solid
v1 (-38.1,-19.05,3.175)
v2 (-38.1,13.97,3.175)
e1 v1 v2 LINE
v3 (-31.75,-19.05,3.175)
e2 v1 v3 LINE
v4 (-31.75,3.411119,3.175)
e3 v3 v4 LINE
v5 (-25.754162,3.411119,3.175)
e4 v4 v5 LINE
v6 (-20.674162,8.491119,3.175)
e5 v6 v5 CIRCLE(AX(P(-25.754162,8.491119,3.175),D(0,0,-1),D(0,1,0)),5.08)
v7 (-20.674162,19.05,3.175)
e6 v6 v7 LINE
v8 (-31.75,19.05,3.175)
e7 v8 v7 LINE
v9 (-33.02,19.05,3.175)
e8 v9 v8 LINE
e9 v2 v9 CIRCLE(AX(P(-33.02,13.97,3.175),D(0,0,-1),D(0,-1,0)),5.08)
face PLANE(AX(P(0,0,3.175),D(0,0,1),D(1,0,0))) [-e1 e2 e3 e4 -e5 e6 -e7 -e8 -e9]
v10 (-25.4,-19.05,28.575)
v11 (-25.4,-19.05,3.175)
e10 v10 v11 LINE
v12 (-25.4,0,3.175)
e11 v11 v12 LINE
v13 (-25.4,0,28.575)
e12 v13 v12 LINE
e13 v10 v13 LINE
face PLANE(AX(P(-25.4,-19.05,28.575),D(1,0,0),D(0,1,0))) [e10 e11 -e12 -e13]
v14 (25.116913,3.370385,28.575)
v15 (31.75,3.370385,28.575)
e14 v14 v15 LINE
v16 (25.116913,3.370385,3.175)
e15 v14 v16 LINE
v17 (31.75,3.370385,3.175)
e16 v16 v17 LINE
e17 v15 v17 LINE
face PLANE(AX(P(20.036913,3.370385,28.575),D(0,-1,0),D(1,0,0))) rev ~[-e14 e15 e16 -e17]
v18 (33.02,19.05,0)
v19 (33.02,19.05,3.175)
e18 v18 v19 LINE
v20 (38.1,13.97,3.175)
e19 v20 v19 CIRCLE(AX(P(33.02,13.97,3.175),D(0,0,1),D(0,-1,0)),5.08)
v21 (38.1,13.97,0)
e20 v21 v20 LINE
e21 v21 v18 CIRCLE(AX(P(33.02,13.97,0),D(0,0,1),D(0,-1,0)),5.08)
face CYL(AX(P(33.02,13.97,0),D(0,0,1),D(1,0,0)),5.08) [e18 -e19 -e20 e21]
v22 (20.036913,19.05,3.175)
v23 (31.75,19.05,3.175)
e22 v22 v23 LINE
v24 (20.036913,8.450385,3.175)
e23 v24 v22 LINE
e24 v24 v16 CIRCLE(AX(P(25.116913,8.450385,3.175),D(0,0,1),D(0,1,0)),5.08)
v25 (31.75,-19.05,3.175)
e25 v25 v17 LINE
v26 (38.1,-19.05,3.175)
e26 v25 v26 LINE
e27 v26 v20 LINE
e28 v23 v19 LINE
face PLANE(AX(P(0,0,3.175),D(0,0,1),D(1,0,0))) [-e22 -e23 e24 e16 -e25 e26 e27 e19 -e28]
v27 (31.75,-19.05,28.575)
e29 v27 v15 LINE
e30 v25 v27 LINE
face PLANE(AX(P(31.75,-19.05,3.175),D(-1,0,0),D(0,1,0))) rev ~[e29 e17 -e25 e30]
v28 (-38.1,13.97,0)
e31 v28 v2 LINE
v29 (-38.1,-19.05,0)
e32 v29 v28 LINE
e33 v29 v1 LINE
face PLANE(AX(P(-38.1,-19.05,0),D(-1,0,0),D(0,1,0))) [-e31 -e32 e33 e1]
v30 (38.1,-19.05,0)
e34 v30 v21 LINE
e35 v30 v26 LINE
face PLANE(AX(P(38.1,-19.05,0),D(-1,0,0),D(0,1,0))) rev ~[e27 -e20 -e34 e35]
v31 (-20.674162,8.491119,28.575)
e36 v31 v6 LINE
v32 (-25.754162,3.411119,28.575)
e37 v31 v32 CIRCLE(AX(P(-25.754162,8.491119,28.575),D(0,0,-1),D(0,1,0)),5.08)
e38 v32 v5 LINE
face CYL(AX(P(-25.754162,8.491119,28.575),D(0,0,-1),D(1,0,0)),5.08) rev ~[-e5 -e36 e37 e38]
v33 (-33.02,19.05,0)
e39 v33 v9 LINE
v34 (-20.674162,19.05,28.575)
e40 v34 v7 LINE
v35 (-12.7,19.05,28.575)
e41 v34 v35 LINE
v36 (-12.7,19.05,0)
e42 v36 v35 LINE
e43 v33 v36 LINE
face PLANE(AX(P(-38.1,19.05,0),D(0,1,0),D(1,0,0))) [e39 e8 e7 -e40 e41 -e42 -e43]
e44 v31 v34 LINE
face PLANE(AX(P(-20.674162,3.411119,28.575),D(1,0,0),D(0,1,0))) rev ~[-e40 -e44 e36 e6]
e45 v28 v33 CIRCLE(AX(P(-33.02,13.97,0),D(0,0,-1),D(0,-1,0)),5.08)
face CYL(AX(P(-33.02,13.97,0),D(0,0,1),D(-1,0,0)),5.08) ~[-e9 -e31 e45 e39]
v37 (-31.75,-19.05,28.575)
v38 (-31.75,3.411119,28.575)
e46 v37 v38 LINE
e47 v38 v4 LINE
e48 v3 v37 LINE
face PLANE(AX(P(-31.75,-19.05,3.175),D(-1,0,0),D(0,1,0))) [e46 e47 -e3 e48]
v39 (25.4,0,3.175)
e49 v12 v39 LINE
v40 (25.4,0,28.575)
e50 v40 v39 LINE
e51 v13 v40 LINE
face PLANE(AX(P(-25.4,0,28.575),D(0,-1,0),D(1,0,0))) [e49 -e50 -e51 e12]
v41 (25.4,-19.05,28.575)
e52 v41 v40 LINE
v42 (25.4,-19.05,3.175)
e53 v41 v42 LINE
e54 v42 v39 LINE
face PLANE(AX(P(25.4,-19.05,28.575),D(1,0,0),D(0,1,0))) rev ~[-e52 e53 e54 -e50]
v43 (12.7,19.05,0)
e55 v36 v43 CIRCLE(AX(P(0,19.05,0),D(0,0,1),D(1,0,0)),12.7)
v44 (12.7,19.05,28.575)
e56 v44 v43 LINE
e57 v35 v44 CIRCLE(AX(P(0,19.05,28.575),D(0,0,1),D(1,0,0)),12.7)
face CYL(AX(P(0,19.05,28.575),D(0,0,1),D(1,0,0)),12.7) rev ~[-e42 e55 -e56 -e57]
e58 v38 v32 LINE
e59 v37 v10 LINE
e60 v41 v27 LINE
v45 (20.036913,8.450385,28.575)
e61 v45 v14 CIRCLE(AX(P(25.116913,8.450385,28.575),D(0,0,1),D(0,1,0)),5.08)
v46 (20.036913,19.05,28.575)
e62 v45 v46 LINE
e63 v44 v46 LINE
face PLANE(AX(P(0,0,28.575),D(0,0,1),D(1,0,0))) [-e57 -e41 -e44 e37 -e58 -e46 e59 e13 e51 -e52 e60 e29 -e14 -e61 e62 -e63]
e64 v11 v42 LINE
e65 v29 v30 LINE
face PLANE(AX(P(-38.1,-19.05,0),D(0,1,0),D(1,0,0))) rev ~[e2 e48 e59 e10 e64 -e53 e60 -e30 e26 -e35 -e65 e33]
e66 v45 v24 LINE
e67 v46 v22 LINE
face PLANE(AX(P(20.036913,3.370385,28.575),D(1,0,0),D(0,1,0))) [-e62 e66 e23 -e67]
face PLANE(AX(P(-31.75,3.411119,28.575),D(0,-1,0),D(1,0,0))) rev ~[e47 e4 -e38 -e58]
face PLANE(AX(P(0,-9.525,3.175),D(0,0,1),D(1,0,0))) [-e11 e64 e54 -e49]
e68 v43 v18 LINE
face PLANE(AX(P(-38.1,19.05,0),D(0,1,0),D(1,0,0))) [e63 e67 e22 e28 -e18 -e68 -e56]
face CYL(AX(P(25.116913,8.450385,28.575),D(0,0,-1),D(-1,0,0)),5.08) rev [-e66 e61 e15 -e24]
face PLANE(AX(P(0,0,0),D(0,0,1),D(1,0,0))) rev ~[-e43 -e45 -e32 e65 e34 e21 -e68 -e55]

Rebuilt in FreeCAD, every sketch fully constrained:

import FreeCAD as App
import Part
import Sketcher

V = App.Vector
Q = App.Units.Quantity


def edges_at(feature, points):
    """Names of the edges that pass closest to the given points."""
    edges = feature.Shape.Edges
    near = lambda p: min(range(len(edges)), key=lambda i: edges[i].distToShape(Part.Vertex(*p))[0])
    return sorted({f"Edge{near(p) + 1}" for p in points})


def add_polygon(sketch, points):
    """Adds a closed chain of lines whose ends are joined by coincident constraints."""
    first, n = sketch.GeometryCount, len(points)
    for a, b in zip(points, points[1:] + points[:1]):
        sketch.addGeometry(Part.LineSegment(App.Vector(*a, 0), App.Vector(*b, 0)), False)
    for i in range(n):
        sketch.addConstraint(Sketcher.Constraint("Coincident", first + i, 2, first + (i + 1) % n, 1))

doc = App.newDocument("Part")
body = doc.addObject("PartDesign::Body", "Body")

sketch1 = body.newObject("Sketcher::SketchObject", "Sketch")
sketch1.AttachmentSupport = (doc.getObject("XY_Plane"), [""])
sketch1.MapMode = "FlatFace"
add_polygon(sketch1, [(-38, 19), (-38, -19), (38, -19), (38, 19)])
sketch1.addConstraint(Sketcher.Constraint("Vertical", 0))
sketch1.addConstraint(Sketcher.Constraint("Horizontal", 1))
sketch1.addConstraint(Sketcher.Constraint("Vertical", 2))
sketch1.addConstraint(Sketcher.Constraint("Horizontal", 3))
sketch1.addConstraint(Sketcher.Constraint("Symmetric", 0, 2, 2, 2, -1, 1))
sketch1.addConstraint(Sketcher.Constraint("DistanceX", 1, 1, 1, 2, Q("3 in")))
sketch1.addConstraint(Sketcher.Constraint("DistanceY", 0, 2, 0, 1, Q("1.5 in")))
pad1 = body.newObject("PartDesign::Pad", "Pad")
pad1.Profile = sketch1
pad1.Length = Q("0.125 in")
doc.recompute()

fillet = body.newObject("PartDesign::Fillet", "Fillet")
fillet.Base = (pad1, edges_at(pad1, [(-38.1, 19.05, 1.587), (38.1, 19.05, 1.587)]))
fillet.Radius = Q("0.2 in")

sketch2 = body.newObject("Sketcher::SketchObject", "Sketch001")
sketch2.AttachmentSupport = (doc.getObject("XY_Plane"), [""])
sketch2.MapMode = "FlatFace"
sketch2.AttachmentOffset = App.Placement(V(0, 0, 0.125 * 25.4), App.Rotation())
add_polygon(sketch2, [(-32, 19), (-32, -19), (32, -19), (32, 19)])
sketch2.addConstraint(Sketcher.Constraint("Vertical", 0))
sketch2.addConstraint(Sketcher.Constraint("Horizontal", 1))
sketch2.addConstraint(Sketcher.Constraint("Vertical", 2))
sketch2.addConstraint(Sketcher.Constraint("Horizontal", 3))
sketch2.addConstraint(Sketcher.Constraint("Symmetric", 0, 2, 2, 2, -1, 1))
sketch2.addConstraint(Sketcher.Constraint("DistanceX", 1, 1, 1, 2, Q("2.5 in")))
sketch2.addConstraint(Sketcher.Constraint("DistanceY", 0, 2, 0, 1, Q("1.5 in")))
pad2 = body.newObject("PartDesign::Pad", "Pad001")
pad2.Profile = sketch2
pad2.Length = Q("1 in")

sketch3 = body.newObject("Sketcher::SketchObject", "Sketch002")
sketch3.AttachmentSupport = (doc.getObject("XY_Plane"), [""])
sketch3.MapMode = "FlatFace"
sketch3.AttachmentOffset = App.Placement(V(0, 0, 1.125 * 25.4), App.Rotation())
add_polygon(sketch3, [(-25, 0), (-25, -19), (25, -19), (25, 0)])
sketch3.addConstraint(Sketcher.Constraint("Vertical", 0))
sketch3.addConstraint(Sketcher.Constraint("Horizontal", 1))
sketch3.addConstraint(Sketcher.Constraint("Vertical", 2))
sketch3.addConstraint(Sketcher.Constraint("Horizontal", 3))
sketch3.addConstraint(Sketcher.Constraint("Symmetric", 2, 2, 3, 2, -1, 1))
sketch3.addConstraint(Sketcher.Constraint("DistanceX", 1, 1, 1, 2, Q("2 in")))
sketch3.addConstraint(Sketcher.Constraint("DistanceY", 0, 2, 0, 1, Q("0.75 in")))
pocket1 = body.newObject("PartDesign::Pocket", "Pocket")
pocket1.Profile = sketch3
pocket1.Length = Q("1 in")

sketch4 = body.newObject("Sketcher::SketchObject", "Sketch003")
sketch4.AttachmentSupport = (doc.getObject("XY_Plane"), [""])
sketch4.MapMode = "FlatFace"
sketch4.AttachmentOffset = App.Placement(V(0, 0, 1.125 * 25.4), App.Rotation())
sketch4.addGeometry(Part.Circle(V(0, 19, 0), V(0, 0, 1), 13), False)
sketch4.addConstraint(Sketcher.Constraint("PointOnObject", 0, 3, -2))
sketch4.addConstraint(Sketcher.Constraint("Diameter", 0, Q("1 in")))
sketch4.addConstraint(Sketcher.Constraint("DistanceY", -1, 1, 0, 3, Q("0.75 in")))
pocket2 = body.newObject("PartDesign::Pocket", "Pocket001")
pocket2.Profile = sketch4
pocket2.Type = "ThroughAll"

sketch5 = body.newObject("Sketcher::SketchObject", "Sketch004")
sketch5.AttachmentSupport = (doc.getObject("XY_Plane"), [""])
sketch5.MapMode = "FlatFace"
sketch5.AttachmentOffset = App.Placement(V(0, 0, 1.125 * 25.4), App.Rotation())
add_polygon(sketch5, [(-32, 19), (-32, 3), (-21, 3), (-21, 19)])
sketch5.addConstraint(Sketcher.Constraint("Vertical", 0))
sketch5.addConstraint(Sketcher.Constraint("Horizontal", 1))
sketch5.addConstraint(Sketcher.Constraint("Vertical", 2))
sketch5.addConstraint(Sketcher.Constraint("Horizontal", 3))
sketch5.addConstraint(Sketcher.Constraint("DistanceX", 0, 2, -1, 1, Q("1.25 in")))
sketch5.addConstraint(Sketcher.Constraint("DistanceY", -1, 1, 2, 2, Q("0.75 in")))
sketch5.addConstraint(Sketcher.Constraint("DistanceX", 1, 1, 1, 2, Q("11.075838 mm")))
sketch5.addConstraint(Sketcher.Constraint("DistanceY", 0, 2, 0, 1, Q("15.638881 mm")))
pocket3 = body.newObject("PartDesign::Pocket", "Pocket002")
pocket3.Profile = sketch5
pocket3.Length = Q("1 in")
doc.recompute()

fillet2 = body.newObject("PartDesign::Fillet", "Fillet001")
fillet2.Base = (pocket3, edges_at(pocket3, [(-20.674, 3.411, 15.875)]))
fillet2.Radius = Q("0.2 in")

sketch6 = body.newObject("Sketcher::SketchObject", "Sketch005")
sketch6.AttachmentSupport = (doc.getObject("XY_Plane"), [""])
sketch6.MapMode = "FlatFace"
sketch6.AttachmentOffset = App.Placement(V(0, 0, 1.125 * 25.4), App.Rotation())
add_polygon(sketch6, [(20, 19), (20, 3), (32, 3), (32, 19)])
sketch6.addConstraint(Sketcher.Constraint("Vertical", 0))
sketch6.addConstraint(Sketcher.Constraint("Horizontal", 1))
sketch6.addConstraint(Sketcher.Constraint("Vertical", 2))
sketch6.addConstraint(Sketcher.Constraint("Horizontal", 3))
sketch6.addConstraint(Sketcher.Constraint("DistanceX", -1, 1, 1, 2, Q("1.25 in")))
sketch6.addConstraint(Sketcher.Constraint("DistanceY", -1, 1, 2, 2, Q("0.75 in")))
sketch6.addConstraint(Sketcher.Constraint("DistanceX", 1, 1, 1, 2, Q("11.713087 mm")))
sketch6.addConstraint(Sketcher.Constraint("DistanceY", 0, 2, 0, 1, Q("15.679615 mm")))
pocket4 = body.newObject("PartDesign::Pocket", "Pocket003")
pocket4.Profile = sketch6
pocket4.Length = Q("1 in")
doc.recompute()

fillet3 = body.newObject("PartDesign::Fillet", "Fillet002")
fillet3.Base = (pocket4, edges_at(pocket4, [(20.037, 3.37, 15.875)]))
fillet3.Radius = Q("0.2 in")

doc.recompute()
